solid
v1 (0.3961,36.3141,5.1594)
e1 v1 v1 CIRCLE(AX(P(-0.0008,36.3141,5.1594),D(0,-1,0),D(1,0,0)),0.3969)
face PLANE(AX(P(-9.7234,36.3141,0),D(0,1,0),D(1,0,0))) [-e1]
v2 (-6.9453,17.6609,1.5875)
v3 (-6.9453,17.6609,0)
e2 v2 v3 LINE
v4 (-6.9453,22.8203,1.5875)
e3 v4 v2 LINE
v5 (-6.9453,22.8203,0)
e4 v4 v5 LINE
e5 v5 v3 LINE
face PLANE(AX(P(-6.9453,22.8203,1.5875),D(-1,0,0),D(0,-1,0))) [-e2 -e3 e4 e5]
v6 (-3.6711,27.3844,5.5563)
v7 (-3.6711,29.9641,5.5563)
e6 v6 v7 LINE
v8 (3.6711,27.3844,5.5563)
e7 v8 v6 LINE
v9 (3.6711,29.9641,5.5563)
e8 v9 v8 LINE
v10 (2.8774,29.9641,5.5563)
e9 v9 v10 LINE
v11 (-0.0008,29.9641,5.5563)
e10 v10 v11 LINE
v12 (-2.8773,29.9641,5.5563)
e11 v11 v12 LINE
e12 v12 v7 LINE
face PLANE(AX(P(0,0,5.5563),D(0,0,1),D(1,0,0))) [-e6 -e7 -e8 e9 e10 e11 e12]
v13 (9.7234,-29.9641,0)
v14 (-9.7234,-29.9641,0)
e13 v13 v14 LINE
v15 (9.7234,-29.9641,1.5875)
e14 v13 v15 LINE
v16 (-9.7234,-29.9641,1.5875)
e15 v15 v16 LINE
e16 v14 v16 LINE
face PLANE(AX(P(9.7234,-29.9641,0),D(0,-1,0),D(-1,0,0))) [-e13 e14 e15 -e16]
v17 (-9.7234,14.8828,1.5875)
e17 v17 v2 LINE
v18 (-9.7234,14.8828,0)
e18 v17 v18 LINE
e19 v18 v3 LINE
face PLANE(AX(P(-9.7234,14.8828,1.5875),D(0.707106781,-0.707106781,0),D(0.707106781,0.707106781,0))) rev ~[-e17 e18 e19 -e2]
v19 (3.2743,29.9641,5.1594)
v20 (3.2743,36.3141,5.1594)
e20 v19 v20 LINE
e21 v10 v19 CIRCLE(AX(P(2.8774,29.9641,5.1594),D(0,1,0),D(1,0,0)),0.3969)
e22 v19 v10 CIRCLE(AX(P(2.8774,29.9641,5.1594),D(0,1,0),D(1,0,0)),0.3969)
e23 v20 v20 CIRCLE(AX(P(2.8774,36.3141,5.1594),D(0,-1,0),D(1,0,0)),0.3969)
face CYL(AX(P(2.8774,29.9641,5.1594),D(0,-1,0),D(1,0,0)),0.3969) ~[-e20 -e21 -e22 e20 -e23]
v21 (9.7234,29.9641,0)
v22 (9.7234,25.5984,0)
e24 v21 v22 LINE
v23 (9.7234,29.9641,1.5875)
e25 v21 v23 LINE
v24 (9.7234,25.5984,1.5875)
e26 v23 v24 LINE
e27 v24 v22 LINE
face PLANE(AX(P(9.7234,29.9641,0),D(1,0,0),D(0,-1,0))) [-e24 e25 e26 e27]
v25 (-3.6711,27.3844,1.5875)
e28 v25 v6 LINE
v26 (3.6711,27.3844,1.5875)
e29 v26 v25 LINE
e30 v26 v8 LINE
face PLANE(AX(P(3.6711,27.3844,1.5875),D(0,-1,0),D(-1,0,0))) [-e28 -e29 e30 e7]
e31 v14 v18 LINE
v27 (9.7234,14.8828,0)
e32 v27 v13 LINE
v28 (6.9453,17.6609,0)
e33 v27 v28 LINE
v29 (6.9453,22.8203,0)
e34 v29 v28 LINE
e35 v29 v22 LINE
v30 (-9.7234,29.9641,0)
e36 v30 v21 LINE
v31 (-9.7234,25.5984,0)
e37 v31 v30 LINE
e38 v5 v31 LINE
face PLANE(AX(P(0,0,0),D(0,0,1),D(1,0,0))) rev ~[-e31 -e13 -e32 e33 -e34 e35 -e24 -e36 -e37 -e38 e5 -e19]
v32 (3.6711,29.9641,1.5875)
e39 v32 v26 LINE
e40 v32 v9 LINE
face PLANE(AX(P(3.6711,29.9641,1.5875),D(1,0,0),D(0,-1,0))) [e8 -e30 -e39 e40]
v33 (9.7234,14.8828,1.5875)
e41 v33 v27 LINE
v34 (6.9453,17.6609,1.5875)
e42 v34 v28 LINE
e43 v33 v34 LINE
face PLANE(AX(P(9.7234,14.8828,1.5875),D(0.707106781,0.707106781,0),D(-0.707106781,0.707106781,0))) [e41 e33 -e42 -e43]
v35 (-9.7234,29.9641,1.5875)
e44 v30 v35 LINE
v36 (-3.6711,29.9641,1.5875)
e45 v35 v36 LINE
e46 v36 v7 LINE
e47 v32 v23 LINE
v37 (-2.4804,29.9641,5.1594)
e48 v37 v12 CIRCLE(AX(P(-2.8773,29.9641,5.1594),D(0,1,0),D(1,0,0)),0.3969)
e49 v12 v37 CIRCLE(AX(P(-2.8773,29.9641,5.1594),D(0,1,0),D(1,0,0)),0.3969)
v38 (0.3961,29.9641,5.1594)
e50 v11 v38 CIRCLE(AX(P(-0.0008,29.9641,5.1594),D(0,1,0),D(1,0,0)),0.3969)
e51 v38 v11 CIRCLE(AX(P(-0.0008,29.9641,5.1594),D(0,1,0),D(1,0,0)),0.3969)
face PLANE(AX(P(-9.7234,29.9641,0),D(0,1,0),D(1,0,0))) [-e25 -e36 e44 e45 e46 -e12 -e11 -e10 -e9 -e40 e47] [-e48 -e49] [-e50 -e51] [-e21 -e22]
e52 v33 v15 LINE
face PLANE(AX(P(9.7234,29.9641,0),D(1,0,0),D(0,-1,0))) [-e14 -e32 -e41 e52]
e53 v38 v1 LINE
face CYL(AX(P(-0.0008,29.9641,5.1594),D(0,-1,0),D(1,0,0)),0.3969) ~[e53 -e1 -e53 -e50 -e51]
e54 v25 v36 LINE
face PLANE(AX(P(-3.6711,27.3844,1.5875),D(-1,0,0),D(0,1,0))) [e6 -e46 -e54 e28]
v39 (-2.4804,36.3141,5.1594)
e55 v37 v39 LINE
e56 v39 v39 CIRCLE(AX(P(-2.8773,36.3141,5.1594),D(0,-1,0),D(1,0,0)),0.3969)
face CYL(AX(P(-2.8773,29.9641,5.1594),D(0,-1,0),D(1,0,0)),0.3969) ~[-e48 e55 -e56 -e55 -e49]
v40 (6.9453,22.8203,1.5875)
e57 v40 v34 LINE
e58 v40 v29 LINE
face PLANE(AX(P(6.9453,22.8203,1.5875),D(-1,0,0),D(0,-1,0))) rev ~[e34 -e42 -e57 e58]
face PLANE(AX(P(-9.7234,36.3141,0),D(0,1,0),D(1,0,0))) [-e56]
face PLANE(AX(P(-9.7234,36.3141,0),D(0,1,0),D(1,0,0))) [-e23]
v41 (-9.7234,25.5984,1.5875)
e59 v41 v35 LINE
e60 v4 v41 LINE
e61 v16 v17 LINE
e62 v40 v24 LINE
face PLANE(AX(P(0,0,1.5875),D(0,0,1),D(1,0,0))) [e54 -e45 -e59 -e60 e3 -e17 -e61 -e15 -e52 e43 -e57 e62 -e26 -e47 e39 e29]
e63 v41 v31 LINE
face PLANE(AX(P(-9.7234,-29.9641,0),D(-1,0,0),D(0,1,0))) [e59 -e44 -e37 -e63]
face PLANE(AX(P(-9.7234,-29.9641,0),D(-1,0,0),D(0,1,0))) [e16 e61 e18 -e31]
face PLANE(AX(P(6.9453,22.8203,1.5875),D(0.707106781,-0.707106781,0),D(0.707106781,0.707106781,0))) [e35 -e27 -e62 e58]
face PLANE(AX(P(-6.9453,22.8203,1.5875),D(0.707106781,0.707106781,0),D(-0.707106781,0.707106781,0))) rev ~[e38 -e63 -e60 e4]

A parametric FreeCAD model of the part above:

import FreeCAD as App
import Part
import Sketcher

V = App.Vector
Q = App.Units.Quantity


def add_polygon(sketch, points):
    """Adds a closed chain of lines whose ends are joined by coincident constraints."""
    first, n = sketch.GeometryCount, len(points)
    for a, b in zip(points, points[1:] + points[:1]):
        sketch.addGeometry(Part.LineSegment(App.Vector(*a, 0), App.Vector(*b, 0)), False)
    for i in range(n):
        sketch.addConstraint(Sketcher.Constraint("Coincident", first + i, 2, first + (i + 1) % n, 1))

doc = App.newDocument("Part")
body = doc.addObject("PartDesign::Body", "Body")

sketch1 = body.newObject("Sketcher::SketchObject", "Sketch")
sketch1.AttachmentSupport = (doc.getObject("XY_Plane"), [""])
sketch1.MapMode = "FlatFace"
add_polygon(sketch1, [(10, 30), (-10, 30), (-10, -30), (10, -30)])
sketch1.addConstraint(Sketcher.Constraint("Horizontal", 0))
sketch1.addConstraint(Sketcher.Constraint("Vertical", 1))
sketch1.addConstraint(Sketcher.Constraint("Horizontal", 2))
sketch1.addConstraint(Sketcher.Constraint("Vertical", 3))
sketch1.addConstraint(Sketcher.Constraint("Symmetric", 0, 2, 2, 2, -1, 1))
sketch1.addConstraint(Sketcher.Constraint("DistanceX", 0, 2, 0, 1, Q("0.765622 in")))
sketch1.addConstraint(Sketcher.Constraint("DistanceY", 1, 2, 1, 1, Q("2.359378 in")))
pad1 = body.newObject("PartDesign::Pad", "Pad")
pad1.Profile = sketch1
pad1.Length = Q("0.0625 in")

sketch2 = body.newObject("Sketcher::SketchObject", "Sketch001")
sketch2.AttachmentSupport = (doc.getObject("XY_Plane"), [""])
sketch2.MapMode = "FlatFace"
sketch2.AttachmentOffset = App.Placement(V(0, 0, 0.0625 * 25.4), App.Rotation())
add_polygon(sketch2, [(6.9, 17.7), (9.7, 14.9), (9.7, 25.6), (6.9, 22.8)])
add_polygon(sketch2, [(-9.7, 25.6), (-9.7, 14.9), (-6.9, 17.7), (-6.9, 22.8)])
sketch2.addConstraint(Sketcher.Constraint("Vertical", 1))
sketch2.addConstraint(Sketcher.Constraint("Vertical", 3))
sketch2.addConstraint(Sketcher.Constraint("Vertical", 4))
sketch2.addConstraint(Sketcher.Constraint("Vertical", 6))
sketch2.addConstraint(Sketcher.Constraint("Symmetric", 0, 2, 4, 2, -2))
sketch2.addConstraint(Sketcher.Constraint("Symmetric", 3, 2, 5, 2, -2))
sketch2.addConstraint(Sketcher.Constraint("Perpendicular", 0, 2))
sketch2.addConstraint(Sketcher.Constraint("Parallel", 2, 5))
sketch2.addConstraint(Sketcher.Constraint("Perpendicular", 5, 7))
sketch2.addConstraint(Sketcher.Constraint("Horizontal", 2, 2, 6, 2))
sketch2.addConstraint(Sketcher.Constraint("DistanceY", 3, 2, 3, 1, Q("0.203126 in")))
sketch2.addConstraint(Sketcher.Constraint("DistanceX", 2, 2, 1, 2, Q("0.1093701 in")))
sketch2.addConstraint(Sketcher.Constraint("DistanceX", 4, 2, 3, 2, Q("0.656248 in")))
sketch2.addConstraint(Sketcher.Constraint("DistanceY", -1, 1, 1, 2, Q("1.0078 in")))
pocket1 = body.newObject("PartDesign::Pocket", "Pocket")
pocket1.Profile = sketch2
pocket1.Length = Q("0.0625 in")

sketch3 = body.newObject("Sketcher::SketchObject", "Sketch002")
sketch3.AttachmentSupport = (doc.getObject("XY_Plane"), [""])
sketch3.MapMode = "FlatFace"
sketch3.AttachmentOffset = App.Placement(V(0, 0, 0.0625 * 25.4), App.Rotation())
add_polygon(sketch3, [(3.7, 27.4), (3.7, 30), (-3.7, 30), (-3.7, 27.4)])
sketch3.addConstraint(Sketcher.Constraint("Vertical", 0))
sketch3.addConstraint(Sketcher.Constraint("Horizontal", 1))
sketch3.addConstraint(Sketcher.Constraint("Vertical", 2))
sketch3.addConstraint(Sketcher.Constraint("Horizontal", 3))
sketch3.addConstraint(Sketcher.Constraint("DistanceX", 1, 2, 1, 1, 7.3422))
sketch3.addConstraint(Sketcher.Constraint("DistanceY", 0, 1, 0, 2, 2.5797))
sketch3.addConstraint(Sketcher.Constraint("DistanceY", -1, 1, 2, 2, Q("1.078126 in")))
sketch3.addConstraint(Sketcher.Constraint("DistanceX", -1, 1, 0, 2, 3.671))
pad2 = body.newObject("PartDesign::Pad", "Pad001")
pad2.Profile = sketch3
pad2.Length = Q("0.156252 in")

sketch4 = body.newObject("Sketcher::SketchObject", "Sketch003")
sketch4.AttachmentSupport = (doc.getObject("XZ_Plane"), [""])
sketch4.MapMode = "FlatFace"
sketch4.AttachmentOffset = App.Placement(V(0, 0, -1.179689 * 25.4), App.Rotation())
sketch4.addGeometry(Part.Circle(V(2.88, 5.16, 0), V(0, 0, 1), 0.4), False)
sketch4.addGeometry(Part.Circle(V(-2.88, 5.16, 0), V(0, 0, 1), 0.4), False)
sketch4.addGeometry(Part.Circle(V(0, 5.16, 0), V(0, 0, 1), 0.4), False)
sketch4.addConstraint(Sketcher.Constraint("Equal", 0, 1))
sketch4.addConstraint(Sketcher.Constraint("Equal", 1, 2))
sketch4.addConstraint(Sketcher.Constraint("Symmetric", 0, 3, 1, 3, -2))
sketch4.addConstraint(Sketcher.Constraint("Horizontal", 1, 3, 2, 3))
sketch4.addConstraint(Sketcher.Constraint("Diameter", 0, Q("0.031252 in")))
sketch4.addConstraint(Sketcher.Constraint("DistanceY", -1, 1, 0, 3, Q("0.203126 in")))
sketch4.addConstraint(Sketcher.Constraint("DistanceX", -1, 1, 0, 3, 2.8774))
sketch4.addConstraint(Sketcher.Constraint("DistanceX", 2, 3, -1, 1, 0.0008))
pad3 = body.newObject("PartDesign::Pad", "Pad002")
pad3.Profile = sketch4
pad3.Length = Q("0.25 in")
pad3.Reversed = True

doc.recompute()
